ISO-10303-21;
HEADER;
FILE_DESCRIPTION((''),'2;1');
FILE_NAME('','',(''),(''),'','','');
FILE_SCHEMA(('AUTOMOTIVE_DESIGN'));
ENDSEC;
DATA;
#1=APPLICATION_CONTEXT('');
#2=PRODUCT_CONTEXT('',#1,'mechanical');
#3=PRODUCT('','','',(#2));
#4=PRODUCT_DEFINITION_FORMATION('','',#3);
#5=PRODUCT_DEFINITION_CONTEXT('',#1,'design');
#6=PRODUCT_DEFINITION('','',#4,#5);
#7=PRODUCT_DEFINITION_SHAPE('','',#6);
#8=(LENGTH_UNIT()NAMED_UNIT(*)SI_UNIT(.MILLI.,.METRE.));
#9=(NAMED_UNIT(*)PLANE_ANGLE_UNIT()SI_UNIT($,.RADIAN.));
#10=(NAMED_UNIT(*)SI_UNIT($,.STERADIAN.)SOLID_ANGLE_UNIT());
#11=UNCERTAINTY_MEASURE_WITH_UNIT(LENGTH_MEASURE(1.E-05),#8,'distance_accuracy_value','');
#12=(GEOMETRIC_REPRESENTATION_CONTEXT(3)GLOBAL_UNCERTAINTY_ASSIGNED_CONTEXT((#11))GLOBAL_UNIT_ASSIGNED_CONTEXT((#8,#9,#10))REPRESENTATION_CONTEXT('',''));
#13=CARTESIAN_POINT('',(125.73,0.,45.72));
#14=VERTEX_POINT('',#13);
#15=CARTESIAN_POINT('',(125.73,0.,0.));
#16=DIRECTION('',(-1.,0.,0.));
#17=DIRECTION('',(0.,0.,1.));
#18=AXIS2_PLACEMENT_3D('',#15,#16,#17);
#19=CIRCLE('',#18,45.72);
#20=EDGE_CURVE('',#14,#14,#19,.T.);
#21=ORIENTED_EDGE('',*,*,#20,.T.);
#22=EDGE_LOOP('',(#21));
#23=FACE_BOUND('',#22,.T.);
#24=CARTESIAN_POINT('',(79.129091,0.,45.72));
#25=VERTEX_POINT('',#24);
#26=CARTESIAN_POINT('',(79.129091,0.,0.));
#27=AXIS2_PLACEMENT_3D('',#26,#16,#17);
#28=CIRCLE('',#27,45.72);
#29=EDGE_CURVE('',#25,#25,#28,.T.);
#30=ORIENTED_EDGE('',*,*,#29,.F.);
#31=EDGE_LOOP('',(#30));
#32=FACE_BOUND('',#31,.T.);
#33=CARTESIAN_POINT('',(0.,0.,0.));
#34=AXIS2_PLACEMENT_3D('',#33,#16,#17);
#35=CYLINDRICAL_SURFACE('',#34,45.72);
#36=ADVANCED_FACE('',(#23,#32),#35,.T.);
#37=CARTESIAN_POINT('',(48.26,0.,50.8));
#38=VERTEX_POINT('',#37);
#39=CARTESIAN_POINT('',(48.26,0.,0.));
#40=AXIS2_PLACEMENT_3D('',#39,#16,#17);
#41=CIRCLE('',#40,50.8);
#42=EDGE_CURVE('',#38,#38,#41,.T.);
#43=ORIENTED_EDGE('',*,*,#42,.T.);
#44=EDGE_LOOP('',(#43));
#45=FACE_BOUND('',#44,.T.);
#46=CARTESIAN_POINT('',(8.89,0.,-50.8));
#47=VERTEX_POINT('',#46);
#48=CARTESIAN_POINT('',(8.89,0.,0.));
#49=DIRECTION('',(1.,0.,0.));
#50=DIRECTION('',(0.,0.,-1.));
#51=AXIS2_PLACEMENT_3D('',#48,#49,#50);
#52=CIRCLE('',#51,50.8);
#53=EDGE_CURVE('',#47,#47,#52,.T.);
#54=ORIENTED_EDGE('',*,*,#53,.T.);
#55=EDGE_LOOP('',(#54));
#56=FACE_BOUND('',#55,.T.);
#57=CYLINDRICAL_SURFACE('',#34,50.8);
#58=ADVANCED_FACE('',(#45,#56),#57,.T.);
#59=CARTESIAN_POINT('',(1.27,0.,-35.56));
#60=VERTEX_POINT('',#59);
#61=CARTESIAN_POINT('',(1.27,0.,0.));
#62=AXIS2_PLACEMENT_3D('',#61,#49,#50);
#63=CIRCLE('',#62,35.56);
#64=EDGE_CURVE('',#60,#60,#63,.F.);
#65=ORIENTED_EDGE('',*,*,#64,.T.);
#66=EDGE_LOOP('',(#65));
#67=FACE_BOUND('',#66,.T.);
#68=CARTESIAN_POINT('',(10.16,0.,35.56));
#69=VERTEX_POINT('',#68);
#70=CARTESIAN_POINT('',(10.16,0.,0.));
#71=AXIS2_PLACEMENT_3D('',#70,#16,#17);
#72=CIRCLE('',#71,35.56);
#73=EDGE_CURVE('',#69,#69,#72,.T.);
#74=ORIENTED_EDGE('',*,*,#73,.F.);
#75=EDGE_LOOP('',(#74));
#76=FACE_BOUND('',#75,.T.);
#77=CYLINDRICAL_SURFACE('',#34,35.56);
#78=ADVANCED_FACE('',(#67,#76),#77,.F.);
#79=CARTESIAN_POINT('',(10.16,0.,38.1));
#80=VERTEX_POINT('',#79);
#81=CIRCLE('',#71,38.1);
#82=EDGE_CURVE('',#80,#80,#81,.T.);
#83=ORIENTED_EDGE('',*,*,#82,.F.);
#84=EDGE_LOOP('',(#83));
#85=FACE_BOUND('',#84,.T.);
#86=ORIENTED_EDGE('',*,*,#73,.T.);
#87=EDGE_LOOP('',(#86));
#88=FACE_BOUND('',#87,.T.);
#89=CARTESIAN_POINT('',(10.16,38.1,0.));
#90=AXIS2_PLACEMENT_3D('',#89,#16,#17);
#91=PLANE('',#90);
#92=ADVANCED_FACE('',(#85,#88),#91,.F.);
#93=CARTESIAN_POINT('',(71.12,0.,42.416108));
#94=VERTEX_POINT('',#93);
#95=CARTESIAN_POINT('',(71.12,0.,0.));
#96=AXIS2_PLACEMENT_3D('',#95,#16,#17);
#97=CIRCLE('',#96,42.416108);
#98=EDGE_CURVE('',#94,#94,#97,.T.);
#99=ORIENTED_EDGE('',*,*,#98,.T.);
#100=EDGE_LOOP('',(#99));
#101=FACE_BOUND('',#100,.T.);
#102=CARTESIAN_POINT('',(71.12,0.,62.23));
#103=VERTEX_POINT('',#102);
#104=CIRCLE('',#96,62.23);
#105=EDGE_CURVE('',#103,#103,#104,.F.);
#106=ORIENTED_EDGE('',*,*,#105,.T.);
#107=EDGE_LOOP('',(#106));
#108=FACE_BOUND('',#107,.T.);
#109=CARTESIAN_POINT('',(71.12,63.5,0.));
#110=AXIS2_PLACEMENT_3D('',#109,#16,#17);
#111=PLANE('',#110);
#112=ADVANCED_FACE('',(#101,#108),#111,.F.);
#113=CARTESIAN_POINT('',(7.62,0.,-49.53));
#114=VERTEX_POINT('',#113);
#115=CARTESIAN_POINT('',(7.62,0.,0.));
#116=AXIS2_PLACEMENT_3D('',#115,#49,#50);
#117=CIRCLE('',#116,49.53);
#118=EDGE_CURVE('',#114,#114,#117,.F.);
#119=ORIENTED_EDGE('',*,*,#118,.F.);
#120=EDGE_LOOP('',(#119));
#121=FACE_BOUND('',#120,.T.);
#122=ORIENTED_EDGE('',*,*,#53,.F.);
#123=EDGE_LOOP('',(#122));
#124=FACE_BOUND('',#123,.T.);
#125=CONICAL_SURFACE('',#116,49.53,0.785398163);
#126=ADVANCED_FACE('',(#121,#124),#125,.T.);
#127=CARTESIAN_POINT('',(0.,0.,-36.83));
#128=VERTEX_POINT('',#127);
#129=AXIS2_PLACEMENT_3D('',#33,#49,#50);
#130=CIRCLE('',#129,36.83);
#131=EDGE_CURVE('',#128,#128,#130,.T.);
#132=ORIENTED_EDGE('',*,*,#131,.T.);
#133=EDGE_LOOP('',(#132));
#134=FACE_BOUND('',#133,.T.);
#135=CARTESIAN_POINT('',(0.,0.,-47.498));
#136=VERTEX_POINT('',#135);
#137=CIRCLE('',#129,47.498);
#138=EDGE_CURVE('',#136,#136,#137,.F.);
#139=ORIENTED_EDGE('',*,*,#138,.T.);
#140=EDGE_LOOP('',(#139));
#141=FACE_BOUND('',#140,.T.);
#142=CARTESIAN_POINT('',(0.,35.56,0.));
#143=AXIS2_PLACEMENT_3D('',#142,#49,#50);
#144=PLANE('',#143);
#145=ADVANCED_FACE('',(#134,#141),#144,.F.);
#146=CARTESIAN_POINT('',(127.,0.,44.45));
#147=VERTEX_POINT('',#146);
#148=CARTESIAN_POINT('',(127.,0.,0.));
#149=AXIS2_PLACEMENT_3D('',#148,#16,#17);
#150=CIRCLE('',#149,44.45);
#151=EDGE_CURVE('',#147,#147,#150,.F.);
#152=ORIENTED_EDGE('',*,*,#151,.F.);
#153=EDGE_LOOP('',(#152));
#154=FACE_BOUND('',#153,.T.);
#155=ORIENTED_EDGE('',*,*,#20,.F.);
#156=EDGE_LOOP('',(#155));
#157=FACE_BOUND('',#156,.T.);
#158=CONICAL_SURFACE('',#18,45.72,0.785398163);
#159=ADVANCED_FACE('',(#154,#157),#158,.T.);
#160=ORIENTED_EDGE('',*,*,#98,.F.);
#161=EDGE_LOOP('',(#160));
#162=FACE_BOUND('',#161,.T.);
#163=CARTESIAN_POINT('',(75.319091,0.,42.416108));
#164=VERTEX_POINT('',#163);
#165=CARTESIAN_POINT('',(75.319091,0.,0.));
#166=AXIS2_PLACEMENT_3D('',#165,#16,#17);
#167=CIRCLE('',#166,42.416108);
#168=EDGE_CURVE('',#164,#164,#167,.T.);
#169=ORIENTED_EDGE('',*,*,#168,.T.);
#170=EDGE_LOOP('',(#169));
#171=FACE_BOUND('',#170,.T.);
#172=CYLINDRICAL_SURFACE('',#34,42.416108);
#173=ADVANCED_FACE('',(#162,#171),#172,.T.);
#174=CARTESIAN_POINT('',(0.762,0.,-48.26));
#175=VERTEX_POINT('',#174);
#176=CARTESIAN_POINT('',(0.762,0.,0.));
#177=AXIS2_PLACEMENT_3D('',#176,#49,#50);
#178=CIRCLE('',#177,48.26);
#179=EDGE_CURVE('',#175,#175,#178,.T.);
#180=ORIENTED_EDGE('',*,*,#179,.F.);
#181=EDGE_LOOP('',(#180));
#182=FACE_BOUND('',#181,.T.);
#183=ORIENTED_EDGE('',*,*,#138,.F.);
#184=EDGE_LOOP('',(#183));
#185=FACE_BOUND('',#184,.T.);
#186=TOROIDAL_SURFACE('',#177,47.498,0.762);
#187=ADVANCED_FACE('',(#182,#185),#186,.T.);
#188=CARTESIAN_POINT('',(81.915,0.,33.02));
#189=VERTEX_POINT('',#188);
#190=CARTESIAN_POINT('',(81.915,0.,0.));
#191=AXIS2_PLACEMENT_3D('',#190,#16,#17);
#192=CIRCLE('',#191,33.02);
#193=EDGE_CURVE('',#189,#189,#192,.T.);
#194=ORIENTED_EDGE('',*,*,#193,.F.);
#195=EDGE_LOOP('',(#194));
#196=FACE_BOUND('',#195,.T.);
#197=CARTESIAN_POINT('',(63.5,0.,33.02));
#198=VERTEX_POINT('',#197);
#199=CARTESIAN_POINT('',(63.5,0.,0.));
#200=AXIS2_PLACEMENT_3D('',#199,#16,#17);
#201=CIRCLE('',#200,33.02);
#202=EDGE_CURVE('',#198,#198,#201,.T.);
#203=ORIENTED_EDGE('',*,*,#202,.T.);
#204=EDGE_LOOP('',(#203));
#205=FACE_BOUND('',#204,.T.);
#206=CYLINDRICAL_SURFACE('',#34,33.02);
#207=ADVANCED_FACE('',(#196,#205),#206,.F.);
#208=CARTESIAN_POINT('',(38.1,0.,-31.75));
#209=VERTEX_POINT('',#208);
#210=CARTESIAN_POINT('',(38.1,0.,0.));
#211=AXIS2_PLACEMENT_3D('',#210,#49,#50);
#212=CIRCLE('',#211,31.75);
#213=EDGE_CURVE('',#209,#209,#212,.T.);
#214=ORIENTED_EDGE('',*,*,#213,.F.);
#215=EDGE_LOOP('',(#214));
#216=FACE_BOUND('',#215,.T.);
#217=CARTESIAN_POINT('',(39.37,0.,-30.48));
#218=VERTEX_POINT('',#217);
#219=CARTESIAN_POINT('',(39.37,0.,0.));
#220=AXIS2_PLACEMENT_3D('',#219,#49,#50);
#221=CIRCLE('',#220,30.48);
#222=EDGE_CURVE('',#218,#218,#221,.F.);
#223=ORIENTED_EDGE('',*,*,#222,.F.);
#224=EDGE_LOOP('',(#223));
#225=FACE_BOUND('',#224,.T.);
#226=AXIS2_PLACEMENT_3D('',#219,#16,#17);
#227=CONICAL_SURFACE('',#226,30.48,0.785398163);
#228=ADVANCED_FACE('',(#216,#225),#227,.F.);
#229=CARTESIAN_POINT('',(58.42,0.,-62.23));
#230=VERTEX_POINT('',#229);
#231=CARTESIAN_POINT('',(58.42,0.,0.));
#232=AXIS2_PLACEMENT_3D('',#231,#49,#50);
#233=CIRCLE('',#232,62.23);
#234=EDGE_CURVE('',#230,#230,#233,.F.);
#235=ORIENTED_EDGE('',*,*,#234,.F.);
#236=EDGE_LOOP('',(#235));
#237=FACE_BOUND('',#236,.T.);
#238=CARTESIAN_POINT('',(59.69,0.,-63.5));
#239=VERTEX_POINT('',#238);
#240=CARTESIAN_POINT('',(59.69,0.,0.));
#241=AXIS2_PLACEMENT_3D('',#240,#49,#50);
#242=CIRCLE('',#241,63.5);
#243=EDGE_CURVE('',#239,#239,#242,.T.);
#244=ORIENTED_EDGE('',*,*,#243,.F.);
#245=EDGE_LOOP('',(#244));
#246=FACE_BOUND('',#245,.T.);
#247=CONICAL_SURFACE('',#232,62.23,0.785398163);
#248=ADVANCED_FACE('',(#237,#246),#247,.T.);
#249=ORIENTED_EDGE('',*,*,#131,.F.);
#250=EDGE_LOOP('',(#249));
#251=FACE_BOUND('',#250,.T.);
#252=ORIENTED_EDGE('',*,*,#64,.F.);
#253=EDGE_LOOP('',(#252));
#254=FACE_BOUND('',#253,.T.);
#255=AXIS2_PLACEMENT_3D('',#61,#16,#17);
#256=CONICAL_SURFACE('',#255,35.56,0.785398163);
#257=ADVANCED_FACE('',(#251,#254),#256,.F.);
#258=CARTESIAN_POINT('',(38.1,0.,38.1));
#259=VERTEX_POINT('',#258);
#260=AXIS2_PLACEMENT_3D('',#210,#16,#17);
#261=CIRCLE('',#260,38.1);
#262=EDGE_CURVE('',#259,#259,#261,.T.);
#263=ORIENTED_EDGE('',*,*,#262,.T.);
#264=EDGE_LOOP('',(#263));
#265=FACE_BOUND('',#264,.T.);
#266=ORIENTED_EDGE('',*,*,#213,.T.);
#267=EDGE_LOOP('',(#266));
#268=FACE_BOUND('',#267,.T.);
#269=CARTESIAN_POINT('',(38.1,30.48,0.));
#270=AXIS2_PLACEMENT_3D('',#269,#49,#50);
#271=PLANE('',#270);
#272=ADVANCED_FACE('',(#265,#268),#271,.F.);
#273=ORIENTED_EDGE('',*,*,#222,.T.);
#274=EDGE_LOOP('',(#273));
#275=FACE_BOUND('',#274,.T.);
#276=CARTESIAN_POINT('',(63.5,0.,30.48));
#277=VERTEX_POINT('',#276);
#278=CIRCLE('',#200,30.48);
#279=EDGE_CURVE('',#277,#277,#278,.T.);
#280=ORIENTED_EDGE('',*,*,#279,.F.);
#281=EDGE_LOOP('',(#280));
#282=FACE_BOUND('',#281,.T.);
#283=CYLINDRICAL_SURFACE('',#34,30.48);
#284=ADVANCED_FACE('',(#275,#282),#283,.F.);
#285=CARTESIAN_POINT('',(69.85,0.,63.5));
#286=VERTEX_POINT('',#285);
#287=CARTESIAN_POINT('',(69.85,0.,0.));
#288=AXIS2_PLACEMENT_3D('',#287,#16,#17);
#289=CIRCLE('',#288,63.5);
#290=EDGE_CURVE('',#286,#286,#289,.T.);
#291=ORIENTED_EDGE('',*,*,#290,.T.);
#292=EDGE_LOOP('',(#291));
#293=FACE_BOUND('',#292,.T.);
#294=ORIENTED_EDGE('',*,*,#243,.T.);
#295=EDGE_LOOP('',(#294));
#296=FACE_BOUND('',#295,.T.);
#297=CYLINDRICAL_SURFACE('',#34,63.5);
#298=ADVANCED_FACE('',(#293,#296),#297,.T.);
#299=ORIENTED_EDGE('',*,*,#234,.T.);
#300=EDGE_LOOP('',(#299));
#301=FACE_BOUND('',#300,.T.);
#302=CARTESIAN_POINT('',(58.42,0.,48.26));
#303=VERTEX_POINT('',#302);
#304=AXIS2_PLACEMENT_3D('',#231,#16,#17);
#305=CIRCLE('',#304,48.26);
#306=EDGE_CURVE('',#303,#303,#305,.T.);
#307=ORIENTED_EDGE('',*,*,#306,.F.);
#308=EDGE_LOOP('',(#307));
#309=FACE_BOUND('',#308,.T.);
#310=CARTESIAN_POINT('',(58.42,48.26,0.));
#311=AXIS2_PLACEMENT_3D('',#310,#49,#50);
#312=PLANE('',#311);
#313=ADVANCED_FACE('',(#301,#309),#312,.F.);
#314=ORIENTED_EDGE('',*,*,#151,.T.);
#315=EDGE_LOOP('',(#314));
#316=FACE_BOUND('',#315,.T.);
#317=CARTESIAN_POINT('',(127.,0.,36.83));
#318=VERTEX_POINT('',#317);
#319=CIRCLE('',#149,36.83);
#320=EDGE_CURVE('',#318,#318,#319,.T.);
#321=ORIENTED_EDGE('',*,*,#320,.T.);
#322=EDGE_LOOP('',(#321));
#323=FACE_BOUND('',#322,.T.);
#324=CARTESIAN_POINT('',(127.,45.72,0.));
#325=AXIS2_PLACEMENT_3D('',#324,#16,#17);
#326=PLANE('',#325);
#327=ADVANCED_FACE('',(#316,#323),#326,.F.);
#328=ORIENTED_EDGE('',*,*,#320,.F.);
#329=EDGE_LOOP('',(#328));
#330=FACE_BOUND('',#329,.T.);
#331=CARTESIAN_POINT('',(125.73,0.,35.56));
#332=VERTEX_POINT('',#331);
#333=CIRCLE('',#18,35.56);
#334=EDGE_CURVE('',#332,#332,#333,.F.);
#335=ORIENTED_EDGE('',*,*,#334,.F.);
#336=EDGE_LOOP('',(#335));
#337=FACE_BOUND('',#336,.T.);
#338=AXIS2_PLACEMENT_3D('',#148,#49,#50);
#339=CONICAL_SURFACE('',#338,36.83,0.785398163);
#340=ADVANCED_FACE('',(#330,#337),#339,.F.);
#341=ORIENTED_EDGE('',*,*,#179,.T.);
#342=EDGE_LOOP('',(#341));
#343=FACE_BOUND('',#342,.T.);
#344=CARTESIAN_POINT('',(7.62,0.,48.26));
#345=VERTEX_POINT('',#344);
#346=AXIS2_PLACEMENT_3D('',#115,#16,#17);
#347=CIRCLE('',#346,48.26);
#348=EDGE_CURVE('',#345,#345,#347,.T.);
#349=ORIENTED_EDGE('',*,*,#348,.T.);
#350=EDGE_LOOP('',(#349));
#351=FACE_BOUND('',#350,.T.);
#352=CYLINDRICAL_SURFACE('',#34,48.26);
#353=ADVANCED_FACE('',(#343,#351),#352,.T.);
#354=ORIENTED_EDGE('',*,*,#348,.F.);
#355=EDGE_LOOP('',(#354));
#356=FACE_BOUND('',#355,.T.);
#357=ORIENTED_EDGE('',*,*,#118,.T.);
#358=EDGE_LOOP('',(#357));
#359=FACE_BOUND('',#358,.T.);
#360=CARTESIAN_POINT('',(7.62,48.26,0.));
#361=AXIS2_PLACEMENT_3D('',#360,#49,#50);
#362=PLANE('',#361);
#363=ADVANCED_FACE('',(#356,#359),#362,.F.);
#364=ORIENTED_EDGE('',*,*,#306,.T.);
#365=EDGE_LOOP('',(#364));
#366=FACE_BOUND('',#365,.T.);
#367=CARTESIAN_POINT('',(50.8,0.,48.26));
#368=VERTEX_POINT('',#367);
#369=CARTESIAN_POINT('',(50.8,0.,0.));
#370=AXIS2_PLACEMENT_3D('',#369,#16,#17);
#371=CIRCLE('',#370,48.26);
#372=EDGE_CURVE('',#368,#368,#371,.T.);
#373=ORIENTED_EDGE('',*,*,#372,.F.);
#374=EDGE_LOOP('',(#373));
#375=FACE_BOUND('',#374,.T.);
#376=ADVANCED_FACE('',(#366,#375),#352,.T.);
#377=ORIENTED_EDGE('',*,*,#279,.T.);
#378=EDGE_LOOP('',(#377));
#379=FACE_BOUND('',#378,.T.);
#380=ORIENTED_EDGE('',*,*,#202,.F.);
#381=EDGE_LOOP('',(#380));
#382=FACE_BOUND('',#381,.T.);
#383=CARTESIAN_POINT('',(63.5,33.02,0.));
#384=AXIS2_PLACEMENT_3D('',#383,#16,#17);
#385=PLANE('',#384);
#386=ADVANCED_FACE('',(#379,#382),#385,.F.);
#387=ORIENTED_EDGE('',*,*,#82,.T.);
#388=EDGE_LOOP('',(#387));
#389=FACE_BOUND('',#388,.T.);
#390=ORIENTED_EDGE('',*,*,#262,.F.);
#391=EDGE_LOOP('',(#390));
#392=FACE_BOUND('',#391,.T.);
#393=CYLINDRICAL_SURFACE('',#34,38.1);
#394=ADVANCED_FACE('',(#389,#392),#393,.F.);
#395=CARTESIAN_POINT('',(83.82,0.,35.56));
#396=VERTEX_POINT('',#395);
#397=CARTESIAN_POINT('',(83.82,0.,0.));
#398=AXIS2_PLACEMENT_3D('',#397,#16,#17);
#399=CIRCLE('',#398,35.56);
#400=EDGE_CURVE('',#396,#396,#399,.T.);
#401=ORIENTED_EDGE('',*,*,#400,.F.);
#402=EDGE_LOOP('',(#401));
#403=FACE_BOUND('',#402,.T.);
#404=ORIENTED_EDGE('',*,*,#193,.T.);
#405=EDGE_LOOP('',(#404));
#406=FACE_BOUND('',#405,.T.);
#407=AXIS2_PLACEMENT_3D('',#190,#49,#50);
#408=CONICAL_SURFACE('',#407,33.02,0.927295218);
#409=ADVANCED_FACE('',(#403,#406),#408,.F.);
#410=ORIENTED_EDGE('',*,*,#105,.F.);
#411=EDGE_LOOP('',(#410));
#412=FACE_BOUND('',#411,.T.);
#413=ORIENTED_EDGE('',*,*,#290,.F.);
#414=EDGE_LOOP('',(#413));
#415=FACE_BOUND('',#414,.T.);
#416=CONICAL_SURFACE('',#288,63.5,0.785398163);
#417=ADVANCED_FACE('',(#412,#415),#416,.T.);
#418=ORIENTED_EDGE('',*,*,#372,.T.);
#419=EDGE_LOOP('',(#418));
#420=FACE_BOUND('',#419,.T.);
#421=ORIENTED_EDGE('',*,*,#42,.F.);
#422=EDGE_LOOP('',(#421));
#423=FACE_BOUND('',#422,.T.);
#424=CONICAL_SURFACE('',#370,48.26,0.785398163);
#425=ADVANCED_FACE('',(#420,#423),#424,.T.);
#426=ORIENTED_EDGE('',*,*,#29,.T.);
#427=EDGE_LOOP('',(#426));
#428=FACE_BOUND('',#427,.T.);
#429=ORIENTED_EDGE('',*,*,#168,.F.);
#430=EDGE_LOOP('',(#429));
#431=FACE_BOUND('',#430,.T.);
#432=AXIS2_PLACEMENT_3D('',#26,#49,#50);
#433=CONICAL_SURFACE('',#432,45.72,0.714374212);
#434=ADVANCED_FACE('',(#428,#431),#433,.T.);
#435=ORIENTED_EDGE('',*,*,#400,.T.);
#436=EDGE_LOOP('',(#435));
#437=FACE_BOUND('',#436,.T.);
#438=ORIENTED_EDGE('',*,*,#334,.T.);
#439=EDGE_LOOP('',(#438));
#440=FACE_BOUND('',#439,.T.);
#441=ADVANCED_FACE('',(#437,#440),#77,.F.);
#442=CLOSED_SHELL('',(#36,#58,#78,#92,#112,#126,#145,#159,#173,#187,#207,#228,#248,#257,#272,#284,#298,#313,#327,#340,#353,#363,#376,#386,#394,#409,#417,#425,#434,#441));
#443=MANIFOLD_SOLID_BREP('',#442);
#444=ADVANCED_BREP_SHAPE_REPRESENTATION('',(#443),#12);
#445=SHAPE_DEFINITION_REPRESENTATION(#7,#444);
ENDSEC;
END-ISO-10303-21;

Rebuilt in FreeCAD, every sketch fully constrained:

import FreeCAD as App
import Part
import Sketcher

V = App.Vector
Q = App.Units.Quantity


def edges_at(feature, points):
    """Names of the edges that pass closest to the given points."""
    edges = feature.Shape.Edges
    near = lambda p: min(range(len(edges)), key=lambda i: edges[i].distToShape(Part.Vertex(*p))[0])
    return sorted({f"Edge{near(p) + 1}" for p in points})


def add_polygon(sketch, points):
    """Adds a closed chain of lines whose ends are joined by coincident constraints."""
    first, n = sketch.GeometryCount, len(points)
    for a, b in zip(points, points[1:] + points[:1]):
        sketch.addGeometry(Part.LineSegment(App.Vector(*a, 0), App.Vector(*b, 0)), False)
    for i in range(n):
        sketch.addConstraint(Sketcher.Constraint("Coincident", first + i, 2, first + (i + 1) % n, 1))

doc = App.newDocument("Part")
body = doc.addObject("PartDesign::Body", "Body")

sketch1 = doc.addObject("Sketcher::SketchObject", "Sketch")
body.addObject(sketch1)
sketch1.AttachmentSupport = (doc.XY_Plane, [""])
sketch1.MapMode = "FlatFace"
add_polygon(sketch1, [(0, 48.3), (0, 35.6), (10.2, 35.6), (10.2, 38.1), (38.1, 38.1), (38.1, 30.5), (63.5, 30.5), (63.5, 33), (81.9, 33), (83.8, 35.6), (127, 35.6), (127, 45.7), (79.1, 45.7), (75.3, 42.4), (71.1, 42.4), (71.1, 63.5), (58.4, 63.5), (58.4, 48.3), (50.8, 48.3), (48.3, 50.8), (7.6, 50.8), (7.6, 48.3)])
sketch1.addConstraint([
    Sketcher.Constraint("Vertical", 0),
    Sketcher.Constraint("Horizontal", 1),
    Sketcher.Constraint("Vertical", 2),
    Sketcher.Constraint("Horizontal", 3),
    Sketcher.Constraint("Vertical", 4),
    Sketcher.Constraint("Horizontal", 5),
    Sketcher.Constraint("Vertical", 6),
    Sketcher.Constraint("Horizontal", 7),
    Sketcher.Constraint("Horizontal", 9),
    Sketcher.Constraint("Vertical", 10),
    Sketcher.Constraint("Horizontal", 11),
    Sketcher.Constraint("Horizontal", 13),
    Sketcher.Constraint("Vertical", 14),
    Sketcher.Constraint("Horizontal", 15),
    Sketcher.Constraint("Vertical", 16),
    Sketcher.Constraint("Horizontal", 17),
    Sketcher.Constraint("Horizontal", 19),
    Sketcher.Constraint("Vertical", 20),
    Sketcher.Constraint("Horizontal", 21),
    Sketcher.Constraint("PointOnObject", 0, 2, -2),
    Sketcher.Constraint("Horizontal", 1, 2, 8, 2),
    Sketcher.Constraint("Horizontal", 17, 2, 20, 2),
    Sketcher.Constraint("Equal", 17, 21),
    Sketcher.Constraint("Equal", 15, 0),
    Sketcher.Constraint("Equal", 21, 4),
    Sketcher.Constraint("Equal", 2, 6),
    Sketcher.Constraint("Equal", 1, 10),
    Sketcher.Constraint("Equal", 6, 20),
    Sketcher.Constraint("DistanceX", 5, 1, 5, 2, Q("1 in")),
    Sketcher.Constraint("DistanceX", 1, 1, 1, 2, Q("0.4 in")),
    Sketcher.Constraint("DistanceX", 3, 1, 3, 2, Q("1.1 in")),
    Sketcher.Constraint("DistanceX", 9, 1, 9, 2, Q("1.7 in")),
    Sketcher.Constraint("DistanceX", 15, 2, 15, 1, Q("0.5 in")),
    Sketcher.Constraint("DistanceX", 17, 2, 17, 1, Q("0.3 in")),
    Sketcher.Constraint("DistanceX", 19, 2, 19, 1, Q("1.6 in")),
    Sketcher.Constraint("DistanceY", 2, 1, 2, 2, Q("0.1 in")),
    Sketcher.Constraint("DistanceY", 16, 2, 16, 1, Q("0.6 in")),
    Sketcher.Constraint("DistanceX", -1, 1, 9, 2, Q("5 in")),
    Sketcher.Constraint("DistanceX", -1, 1, 17, 2, Q("2 in")),
    Sketcher.Constraint("DistanceY", -1, 1, 18, 2, Q("2 in")),
    Sketcher.Constraint("DistanceX", 7, 1, 7, 2, Q("0.725 in")),
    Sketcher.Constraint("DistanceX", 12, 2, 11, 2, Q("0.15 in")),
    Sketcher.Constraint("DistanceX", 11, 2, 11, 1, 47.870909),
    Sketcher.Constraint("DistanceY", 14, 1, 14, 2, 21.083892),
])
revolution = doc.addObject("PartDesign::Revolution", "Revolution")
body.addObject(revolution)
revolution.Profile = sketch1
revolution.ReferenceAxis = (sketch1, ["H_Axis"])
revolution.Angle = 360
doc.recompute()

chamfer = doc.addObject("PartDesign::Chamfer", "Chamfer")
body.addObject(chamfer)
chamfer.Base = (revolution, edges_at(revolution, [
    (0, 0, -35.56),
    (7.62, 0, -50.8),
    (58.42, 0, -63.5),
    (71.12, 0, -63.5),
    (127, 0, -45.72),
    (127, 0, -35.56),
    (38.1, 0, -30.48),
]))
chamfer.Size = Q("0.05 in")
doc.recompute()

fillet = doc.addObject("PartDesign::Fillet", "Fillet")
body.addObject(fillet)
fillet.Base = (chamfer, edges_at(chamfer, [(0, 0, -48.26)]))
fillet.Radius = Q("0.03 in")

doc.recompute()
